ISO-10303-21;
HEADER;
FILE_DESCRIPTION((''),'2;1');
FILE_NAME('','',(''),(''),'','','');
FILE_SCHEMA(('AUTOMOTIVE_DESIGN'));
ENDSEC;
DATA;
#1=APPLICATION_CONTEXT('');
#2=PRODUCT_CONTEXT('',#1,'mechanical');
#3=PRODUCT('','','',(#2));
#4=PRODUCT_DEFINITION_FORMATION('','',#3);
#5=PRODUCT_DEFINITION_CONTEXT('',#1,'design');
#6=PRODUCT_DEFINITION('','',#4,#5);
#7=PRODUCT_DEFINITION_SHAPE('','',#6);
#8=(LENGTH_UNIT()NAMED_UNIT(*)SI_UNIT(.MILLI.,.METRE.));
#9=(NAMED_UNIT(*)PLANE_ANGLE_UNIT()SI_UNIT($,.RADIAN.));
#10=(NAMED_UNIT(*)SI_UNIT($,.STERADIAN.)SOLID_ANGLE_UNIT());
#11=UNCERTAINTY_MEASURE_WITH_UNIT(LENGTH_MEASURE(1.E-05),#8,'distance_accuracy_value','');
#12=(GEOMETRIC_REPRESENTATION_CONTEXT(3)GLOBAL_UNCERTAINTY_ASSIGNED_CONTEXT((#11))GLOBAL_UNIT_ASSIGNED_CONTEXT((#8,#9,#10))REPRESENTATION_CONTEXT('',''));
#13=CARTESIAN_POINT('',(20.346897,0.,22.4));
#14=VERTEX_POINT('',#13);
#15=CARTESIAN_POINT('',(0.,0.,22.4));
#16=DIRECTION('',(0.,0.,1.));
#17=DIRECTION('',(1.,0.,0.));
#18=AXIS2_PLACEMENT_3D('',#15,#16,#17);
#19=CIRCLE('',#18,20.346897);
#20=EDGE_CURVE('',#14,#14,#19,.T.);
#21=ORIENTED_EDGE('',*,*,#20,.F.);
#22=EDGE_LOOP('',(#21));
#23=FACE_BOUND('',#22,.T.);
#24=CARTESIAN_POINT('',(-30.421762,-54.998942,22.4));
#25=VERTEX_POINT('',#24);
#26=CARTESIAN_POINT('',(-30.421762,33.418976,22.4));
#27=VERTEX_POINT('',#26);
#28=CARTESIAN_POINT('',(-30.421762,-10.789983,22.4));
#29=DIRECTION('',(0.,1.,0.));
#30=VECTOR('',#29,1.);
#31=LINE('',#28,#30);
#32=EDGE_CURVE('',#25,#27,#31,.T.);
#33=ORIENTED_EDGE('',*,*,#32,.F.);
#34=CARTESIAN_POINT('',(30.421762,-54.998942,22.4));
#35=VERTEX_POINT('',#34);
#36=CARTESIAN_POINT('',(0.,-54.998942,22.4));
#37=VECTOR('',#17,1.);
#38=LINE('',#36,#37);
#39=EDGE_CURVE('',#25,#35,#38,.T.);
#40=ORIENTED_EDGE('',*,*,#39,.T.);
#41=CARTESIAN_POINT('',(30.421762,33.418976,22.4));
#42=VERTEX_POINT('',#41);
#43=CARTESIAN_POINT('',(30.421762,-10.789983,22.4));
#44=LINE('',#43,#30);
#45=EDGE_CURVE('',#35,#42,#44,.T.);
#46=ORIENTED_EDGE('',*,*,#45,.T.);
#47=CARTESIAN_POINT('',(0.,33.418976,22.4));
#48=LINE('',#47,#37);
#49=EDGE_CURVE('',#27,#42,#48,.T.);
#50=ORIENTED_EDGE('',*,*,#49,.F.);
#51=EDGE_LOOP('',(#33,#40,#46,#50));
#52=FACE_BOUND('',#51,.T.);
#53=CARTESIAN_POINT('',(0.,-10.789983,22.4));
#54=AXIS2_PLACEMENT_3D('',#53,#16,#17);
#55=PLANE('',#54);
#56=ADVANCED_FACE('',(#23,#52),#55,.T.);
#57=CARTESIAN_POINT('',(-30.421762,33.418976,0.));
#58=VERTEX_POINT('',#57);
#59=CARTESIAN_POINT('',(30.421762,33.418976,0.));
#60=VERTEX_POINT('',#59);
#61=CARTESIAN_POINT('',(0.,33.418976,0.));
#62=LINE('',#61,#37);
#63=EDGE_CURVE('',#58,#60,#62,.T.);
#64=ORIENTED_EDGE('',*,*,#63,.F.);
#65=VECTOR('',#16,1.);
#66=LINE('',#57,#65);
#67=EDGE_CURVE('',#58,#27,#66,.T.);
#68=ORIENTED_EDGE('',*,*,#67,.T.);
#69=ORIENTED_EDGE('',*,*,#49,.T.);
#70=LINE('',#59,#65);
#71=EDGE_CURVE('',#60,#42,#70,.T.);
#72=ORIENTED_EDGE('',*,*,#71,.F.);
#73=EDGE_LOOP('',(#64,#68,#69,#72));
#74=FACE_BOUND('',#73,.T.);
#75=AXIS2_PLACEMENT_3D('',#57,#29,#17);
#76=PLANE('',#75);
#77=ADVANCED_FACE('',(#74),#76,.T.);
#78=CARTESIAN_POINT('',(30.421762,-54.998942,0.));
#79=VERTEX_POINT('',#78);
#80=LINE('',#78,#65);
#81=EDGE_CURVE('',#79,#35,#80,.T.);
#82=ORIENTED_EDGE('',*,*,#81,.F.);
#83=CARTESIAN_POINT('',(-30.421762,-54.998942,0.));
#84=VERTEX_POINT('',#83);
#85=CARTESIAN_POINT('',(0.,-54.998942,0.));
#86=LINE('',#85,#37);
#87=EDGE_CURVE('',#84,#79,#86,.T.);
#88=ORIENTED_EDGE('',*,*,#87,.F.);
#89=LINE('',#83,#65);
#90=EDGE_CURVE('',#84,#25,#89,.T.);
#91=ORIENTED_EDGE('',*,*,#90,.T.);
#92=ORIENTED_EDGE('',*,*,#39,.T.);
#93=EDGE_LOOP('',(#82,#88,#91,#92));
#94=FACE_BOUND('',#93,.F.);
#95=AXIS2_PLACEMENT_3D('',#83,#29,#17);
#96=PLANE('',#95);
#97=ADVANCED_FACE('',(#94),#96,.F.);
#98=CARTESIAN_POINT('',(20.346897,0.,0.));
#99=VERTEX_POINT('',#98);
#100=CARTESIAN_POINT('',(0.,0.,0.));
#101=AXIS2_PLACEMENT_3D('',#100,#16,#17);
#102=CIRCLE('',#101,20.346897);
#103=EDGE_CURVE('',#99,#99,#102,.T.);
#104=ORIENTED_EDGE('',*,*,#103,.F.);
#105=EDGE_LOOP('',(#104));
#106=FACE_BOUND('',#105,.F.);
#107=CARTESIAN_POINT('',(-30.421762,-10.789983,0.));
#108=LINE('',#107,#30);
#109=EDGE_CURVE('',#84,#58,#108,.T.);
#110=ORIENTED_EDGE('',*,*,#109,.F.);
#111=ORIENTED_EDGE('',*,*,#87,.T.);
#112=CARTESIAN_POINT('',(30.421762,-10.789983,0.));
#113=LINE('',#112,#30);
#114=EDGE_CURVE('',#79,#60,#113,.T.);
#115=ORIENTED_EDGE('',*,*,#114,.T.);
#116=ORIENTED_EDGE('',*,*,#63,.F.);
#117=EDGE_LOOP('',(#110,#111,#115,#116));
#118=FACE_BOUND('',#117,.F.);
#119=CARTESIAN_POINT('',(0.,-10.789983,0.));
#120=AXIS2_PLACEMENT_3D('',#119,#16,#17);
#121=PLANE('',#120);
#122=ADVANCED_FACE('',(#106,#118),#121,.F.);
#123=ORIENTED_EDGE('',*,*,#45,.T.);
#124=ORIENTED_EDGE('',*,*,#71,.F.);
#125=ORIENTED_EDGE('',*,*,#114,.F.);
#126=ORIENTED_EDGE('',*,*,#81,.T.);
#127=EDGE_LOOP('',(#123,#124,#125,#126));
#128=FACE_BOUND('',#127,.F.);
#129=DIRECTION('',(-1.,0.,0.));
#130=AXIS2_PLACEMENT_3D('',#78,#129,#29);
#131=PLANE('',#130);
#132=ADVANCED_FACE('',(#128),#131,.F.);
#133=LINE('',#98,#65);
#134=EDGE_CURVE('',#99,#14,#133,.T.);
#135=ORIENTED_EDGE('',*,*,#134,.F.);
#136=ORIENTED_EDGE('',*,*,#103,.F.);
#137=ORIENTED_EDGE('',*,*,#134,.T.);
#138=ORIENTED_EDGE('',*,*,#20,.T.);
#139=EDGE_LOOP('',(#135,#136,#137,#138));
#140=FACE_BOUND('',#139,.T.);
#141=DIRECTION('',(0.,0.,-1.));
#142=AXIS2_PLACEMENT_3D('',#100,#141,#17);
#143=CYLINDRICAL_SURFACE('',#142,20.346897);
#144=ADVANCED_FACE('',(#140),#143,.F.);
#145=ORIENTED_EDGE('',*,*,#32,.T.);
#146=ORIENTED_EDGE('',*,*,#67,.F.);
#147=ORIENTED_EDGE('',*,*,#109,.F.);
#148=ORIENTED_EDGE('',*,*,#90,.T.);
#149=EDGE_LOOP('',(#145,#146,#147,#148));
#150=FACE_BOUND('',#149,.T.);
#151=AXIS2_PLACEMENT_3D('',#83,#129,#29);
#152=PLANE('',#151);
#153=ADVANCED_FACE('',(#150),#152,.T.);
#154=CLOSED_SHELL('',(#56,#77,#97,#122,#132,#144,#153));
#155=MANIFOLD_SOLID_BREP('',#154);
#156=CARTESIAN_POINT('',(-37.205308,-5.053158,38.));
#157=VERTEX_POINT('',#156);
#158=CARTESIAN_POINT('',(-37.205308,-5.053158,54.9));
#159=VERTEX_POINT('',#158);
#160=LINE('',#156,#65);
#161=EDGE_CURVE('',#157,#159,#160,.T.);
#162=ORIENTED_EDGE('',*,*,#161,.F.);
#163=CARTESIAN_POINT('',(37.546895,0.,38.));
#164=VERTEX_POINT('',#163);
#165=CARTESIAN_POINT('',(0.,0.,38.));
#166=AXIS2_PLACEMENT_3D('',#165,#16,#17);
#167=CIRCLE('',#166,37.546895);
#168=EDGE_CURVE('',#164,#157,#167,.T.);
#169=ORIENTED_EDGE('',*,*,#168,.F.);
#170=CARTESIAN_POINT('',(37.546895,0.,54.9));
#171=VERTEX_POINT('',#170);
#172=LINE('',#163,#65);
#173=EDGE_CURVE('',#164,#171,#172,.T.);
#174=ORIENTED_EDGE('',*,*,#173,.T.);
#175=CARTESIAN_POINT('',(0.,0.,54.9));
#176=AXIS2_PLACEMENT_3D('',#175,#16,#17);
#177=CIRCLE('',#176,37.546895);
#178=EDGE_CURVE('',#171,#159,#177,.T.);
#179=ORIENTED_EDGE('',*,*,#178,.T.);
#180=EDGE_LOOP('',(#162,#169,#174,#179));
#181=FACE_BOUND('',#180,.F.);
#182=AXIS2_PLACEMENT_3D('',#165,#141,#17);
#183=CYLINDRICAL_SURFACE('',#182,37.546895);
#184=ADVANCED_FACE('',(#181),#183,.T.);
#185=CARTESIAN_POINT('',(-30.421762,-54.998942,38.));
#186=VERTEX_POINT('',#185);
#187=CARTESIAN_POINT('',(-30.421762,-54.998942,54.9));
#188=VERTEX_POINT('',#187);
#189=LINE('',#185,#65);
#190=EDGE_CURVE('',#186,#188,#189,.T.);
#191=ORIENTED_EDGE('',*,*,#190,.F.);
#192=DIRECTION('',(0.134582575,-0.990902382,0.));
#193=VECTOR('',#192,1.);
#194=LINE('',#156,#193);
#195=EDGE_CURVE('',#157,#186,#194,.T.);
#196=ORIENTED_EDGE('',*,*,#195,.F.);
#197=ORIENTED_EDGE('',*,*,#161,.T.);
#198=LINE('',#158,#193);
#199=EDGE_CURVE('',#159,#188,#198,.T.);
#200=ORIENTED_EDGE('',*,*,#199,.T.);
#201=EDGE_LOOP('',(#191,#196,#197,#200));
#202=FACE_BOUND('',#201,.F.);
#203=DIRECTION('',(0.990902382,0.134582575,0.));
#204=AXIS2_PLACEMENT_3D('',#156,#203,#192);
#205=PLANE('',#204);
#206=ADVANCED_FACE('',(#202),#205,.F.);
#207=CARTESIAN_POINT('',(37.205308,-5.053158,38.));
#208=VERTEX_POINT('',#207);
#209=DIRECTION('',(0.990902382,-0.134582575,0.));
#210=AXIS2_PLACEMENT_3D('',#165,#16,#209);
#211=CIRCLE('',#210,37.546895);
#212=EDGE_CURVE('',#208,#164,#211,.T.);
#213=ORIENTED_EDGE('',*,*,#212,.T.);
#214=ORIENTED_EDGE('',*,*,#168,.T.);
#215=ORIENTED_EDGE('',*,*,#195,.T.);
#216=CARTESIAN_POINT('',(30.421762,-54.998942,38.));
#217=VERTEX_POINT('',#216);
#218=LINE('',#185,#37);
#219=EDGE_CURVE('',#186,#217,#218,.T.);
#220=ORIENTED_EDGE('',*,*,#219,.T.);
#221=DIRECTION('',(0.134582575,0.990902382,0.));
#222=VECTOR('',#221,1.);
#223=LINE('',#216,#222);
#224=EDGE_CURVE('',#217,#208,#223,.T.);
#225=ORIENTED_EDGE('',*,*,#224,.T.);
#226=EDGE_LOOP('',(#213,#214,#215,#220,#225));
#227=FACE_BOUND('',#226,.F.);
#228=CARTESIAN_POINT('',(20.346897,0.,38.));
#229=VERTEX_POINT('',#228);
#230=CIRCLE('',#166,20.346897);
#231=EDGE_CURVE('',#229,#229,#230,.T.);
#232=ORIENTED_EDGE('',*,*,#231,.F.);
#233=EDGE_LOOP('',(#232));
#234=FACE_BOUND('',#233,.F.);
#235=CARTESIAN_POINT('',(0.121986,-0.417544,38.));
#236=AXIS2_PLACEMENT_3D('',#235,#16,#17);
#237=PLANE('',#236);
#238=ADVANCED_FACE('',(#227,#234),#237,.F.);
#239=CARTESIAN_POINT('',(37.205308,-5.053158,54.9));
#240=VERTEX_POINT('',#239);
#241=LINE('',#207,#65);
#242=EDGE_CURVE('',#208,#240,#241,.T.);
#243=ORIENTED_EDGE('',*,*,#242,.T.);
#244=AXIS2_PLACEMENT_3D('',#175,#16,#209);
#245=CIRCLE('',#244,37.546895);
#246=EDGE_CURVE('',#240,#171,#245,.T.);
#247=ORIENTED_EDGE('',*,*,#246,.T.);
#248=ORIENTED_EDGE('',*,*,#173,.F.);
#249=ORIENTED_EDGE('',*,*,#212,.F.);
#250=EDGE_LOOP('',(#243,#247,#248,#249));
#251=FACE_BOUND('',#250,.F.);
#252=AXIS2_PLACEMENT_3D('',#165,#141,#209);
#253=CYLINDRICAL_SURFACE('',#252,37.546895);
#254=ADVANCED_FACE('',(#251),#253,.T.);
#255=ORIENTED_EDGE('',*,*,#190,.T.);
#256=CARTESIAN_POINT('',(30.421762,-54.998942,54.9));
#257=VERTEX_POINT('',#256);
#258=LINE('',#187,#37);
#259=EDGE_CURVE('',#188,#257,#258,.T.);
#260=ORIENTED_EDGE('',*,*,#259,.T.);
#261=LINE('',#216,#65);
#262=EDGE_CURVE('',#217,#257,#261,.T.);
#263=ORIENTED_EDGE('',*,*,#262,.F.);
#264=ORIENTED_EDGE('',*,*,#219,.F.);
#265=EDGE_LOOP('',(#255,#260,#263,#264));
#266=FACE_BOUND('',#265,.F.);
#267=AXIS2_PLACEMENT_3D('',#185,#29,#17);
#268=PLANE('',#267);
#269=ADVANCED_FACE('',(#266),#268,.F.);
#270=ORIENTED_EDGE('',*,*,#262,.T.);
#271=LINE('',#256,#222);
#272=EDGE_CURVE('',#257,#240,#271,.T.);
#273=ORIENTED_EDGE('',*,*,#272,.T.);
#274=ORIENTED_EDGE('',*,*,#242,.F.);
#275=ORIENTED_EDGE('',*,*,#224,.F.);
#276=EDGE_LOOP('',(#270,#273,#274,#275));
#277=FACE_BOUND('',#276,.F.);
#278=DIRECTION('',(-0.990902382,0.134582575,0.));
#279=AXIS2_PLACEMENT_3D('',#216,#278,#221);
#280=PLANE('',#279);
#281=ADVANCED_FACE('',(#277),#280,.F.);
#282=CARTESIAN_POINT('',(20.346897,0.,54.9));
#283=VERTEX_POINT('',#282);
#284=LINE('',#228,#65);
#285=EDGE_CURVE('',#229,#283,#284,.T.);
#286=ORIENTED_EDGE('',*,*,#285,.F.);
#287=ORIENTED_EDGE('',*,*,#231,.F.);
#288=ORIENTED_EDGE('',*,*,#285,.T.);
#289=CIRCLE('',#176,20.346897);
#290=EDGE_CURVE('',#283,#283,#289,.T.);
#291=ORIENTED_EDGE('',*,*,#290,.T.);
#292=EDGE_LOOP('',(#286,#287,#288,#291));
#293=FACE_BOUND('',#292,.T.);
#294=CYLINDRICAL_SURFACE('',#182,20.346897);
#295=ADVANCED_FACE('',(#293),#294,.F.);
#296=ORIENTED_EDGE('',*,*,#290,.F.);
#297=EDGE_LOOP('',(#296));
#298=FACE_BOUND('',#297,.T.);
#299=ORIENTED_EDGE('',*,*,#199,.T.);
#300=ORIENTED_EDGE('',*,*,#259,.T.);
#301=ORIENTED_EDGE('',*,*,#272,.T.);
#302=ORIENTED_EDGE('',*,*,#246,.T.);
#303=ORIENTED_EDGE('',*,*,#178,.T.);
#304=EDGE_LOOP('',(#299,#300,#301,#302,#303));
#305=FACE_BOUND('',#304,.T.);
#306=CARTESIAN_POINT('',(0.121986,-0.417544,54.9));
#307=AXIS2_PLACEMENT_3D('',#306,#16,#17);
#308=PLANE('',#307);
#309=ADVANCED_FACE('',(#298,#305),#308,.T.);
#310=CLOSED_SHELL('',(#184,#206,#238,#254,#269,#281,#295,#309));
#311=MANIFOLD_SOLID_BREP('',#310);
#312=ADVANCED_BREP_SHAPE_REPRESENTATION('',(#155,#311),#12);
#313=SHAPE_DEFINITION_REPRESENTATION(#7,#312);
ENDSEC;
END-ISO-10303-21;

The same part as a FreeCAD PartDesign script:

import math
import FreeCAD as App
import Part
import Sketcher
from FreeCAD import Vector


def add_polygon(sketch, points):
    """Adds a closed chain of lines whose ends are joined by coincident constraints."""
    first, n = sketch.GeometryCount, len(points)
    for a, b in zip(points, points[1:] + points[:1]):
        sketch.addGeometry(Part.LineSegment(App.Vector(*a, 0), App.Vector(*b, 0)), False)
    for i in range(n):
        sketch.addConstraint(Sketcher.Constraint("Coincident", first + i, 2, first + (i + 1) % n, 1))

doc = App.newDocument("Part")
params = doc.addObject("Spreadsheet::Sheet", "Params")
for row, (alias, value) in enumerate([
    ("pad1_length", "22.4 mm"),
    ("pad2_length", "16.9 mm"),
], start=1):
    params.set(f"A{row}", alias)
    params.set(f"B{row}", "=" + value)
    params.setAlias(f"B{row}", alias)

body = doc.addObject("PartDesign::Body", "Body")

# Sketch on XY plane
sketch1 = doc.addObject("Sketcher::SketchObject", "Sketch")
body.addObject(sketch1)
sketch1.AttachmentSupport = (doc.XY_Plane, [""])
sketch1.MapMode = "FlatFace"
add_polygon(sketch1, [(-30, 33), (-30, -55), (30, -55), (30, 33)])  # lines 0-3
sketch1.addGeometry(Part.Circle(Vector(0, 0, 0), Vector(0, 0, 1), 20), False)  # 4
sketch1.addConstraint([
    Sketcher.Constraint("Vertical", 0),
    Sketcher.Constraint("Horizontal", 1),
    Sketcher.Constraint("Vertical", 2),
    Sketcher.Constraint("Horizontal", 3),
    Sketcher.Constraint("Coincident", 4, 3, -1, 1),
    Sketcher.Constraint("Diameter", 4, 40.693794),
    Sketcher.Constraint("DistanceX", 1, 1, 1, 2, 60.843524),
    Sketcher.Constraint("DistanceY", 0, 2, 0, 1, 88.417917),
    Sketcher.Constraint("DistanceX", 0, 2, -1, 1, 30.421762),
    Sketcher.Constraint("DistanceY", 0, 2, -1, 1, 54.998942),
])
pad1 = doc.addObject("PartDesign::Pad", "Pad")
body.addObject(pad1)
pad1.Profile = sketch1
pad1.setExpression("Length", "Params.pad1_length")
body2 = doc.addObject("PartDesign::Body", "Body001")

# Sketch on XY plane
sketch2 = doc.addObject("Sketcher::SketchObject", "Sketch001")
body2.addObject(sketch2)
sketch2.AttachmentSupport = (doc.getObject("XY_Plane001"), [""])
sketch2.MapMode = "FlatFace"
sketch2.AttachmentOffset = App.Placement(Vector(0, 0, 38), App.Rotation())
sketch2.addGeometry([
    Part.ArcOfCircle(Part.Circle(Vector(0, 0, 0), Vector(0, 0, 1), 38), math.radians(-7.73), math.radians(0)),  # 0
    Part.ArcOfCircle(Part.Circle(Vector(0, 0, 0), Vector(0, 0, 1), 38), math.radians(0), math.radians(188)),  # 1
    Part.LineSegment(Vector(-37, -5, 0), Vector(-30, -55, 0)),  # 2
    Part.LineSegment(Vector(-30, -55, 0), Vector(30, -55, 0)),  # 3
    Part.LineSegment(Vector(30, -55, 0), Vector(37, -5, 0)),  # 4
    Part.Circle(Vector(0, 0, 0), Vector(0, 0, 1), 20),  # 5
], False)
sketch2.addConstraint([
    Sketcher.Constraint("Tangent", 0, 2, 1, 1),
    Sketcher.Constraint("Tangent", 1, 2, 2, 1),
    Sketcher.Constraint("Coincident", 2, 2, 3, 1),
    Sketcher.Constraint("Coincident", 3, 2, 4, 1),
    Sketcher.Constraint("Tangent", 4, 2, 0, 1),
    Sketcher.Constraint("Horizontal", 3),
    Sketcher.Constraint("Coincident", 0, 3, -1, 1),
    Sketcher.Constraint("Coincident", 5, 3, -1, 1),
    Sketcher.Constraint("Equal", 0, 1),
    Sketcher.Constraint("PointOnObject", 0, 2, -1),
    Sketcher.Constraint("Horizontal", 1, 2, 4, 2),
    Sketcher.Constraint("Diameter", 5, 40.693794),
    Sketcher.Constraint("Radius", 0, 37.546895),
    Sketcher.Constraint("DistanceX", 3, 1, 3, 2, 60.843524),
    Sketcher.Constraint("DistanceY", 2, 2, -1, 1, 54.998942),
])
pad2 = doc.addObject("PartDesign::Pad", "Pad001")
body2.addObject(pad2)
pad2.Profile = sketch2
pad2.setExpression("Length", "Params.pad2_length")

doc.recompute()
